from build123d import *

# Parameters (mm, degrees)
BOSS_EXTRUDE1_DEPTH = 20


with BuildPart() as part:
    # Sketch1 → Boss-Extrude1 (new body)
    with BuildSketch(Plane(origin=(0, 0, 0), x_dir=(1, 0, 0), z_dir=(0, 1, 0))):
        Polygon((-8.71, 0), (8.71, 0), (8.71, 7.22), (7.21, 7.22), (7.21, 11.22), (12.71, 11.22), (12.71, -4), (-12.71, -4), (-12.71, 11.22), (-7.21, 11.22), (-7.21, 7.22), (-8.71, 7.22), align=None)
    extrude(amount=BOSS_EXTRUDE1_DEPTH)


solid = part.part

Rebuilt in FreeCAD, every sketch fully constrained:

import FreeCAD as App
import Part
import Sketcher

V = App.Vector


def add_polygon(sketch, points):
    """Adds a closed chain of lines whose ends are joined by coincident constraints."""
    first, n = sketch.GeometryCount, len(points)
    for a, b in zip(points, points[1:] + points[:1]):
        sketch.addGeometry(Part.LineSegment(App.Vector(*a, 0), App.Vector(*b, 0)), False)
    for i in range(n):
        sketch.addConstraint(Sketcher.Constraint("Coincident", first + i, 2, first + (i + 1) % n, 1))

doc = App.newDocument("Part")
body = doc.addObject("PartDesign::Body", "Body")

# Sketch on XZ plane
sketch1 = body.newObject("Sketcher::SketchObject", "Sketch")
sketch1.AttachmentSupport = (doc.getObject("XZ_Plane"), [""])
sketch1.MapMode = "FlatFace"
add_polygon(sketch1, [(8.7, 0), (-8.7, 0), (-8.7, -7.2), (-7.2, -7.2), (-7.2, -11.2), (-12.7, -11.2), (-12.7, 4), (12.7, 4), (12.7, -11.2), (7.2, -11.2), (7.2, -7.2), (8.7, -7.2)])  # lines 0-11
sketch1.addConstraint([
    Sketcher.Constraint("Horizontal", 0),
    Sketcher.Constraint("Vertical", 1),
    Sketcher.Constraint("Horizontal", 2),
    Sketcher.Constraint("Vertical", 3),
    Sketcher.Constraint("Horizontal", 4),
    Sketcher.Constraint("Vertical", 5),
    Sketcher.Constraint("Horizontal", 6),
    Sketcher.Constraint("Vertical", 7),
    Sketcher.Constraint("Horizontal", 8),
    Sketcher.Constraint("Vertical", 9),
    Sketcher.Constraint("Horizontal", 10),
    Sketcher.Constraint("Vertical", 11),
    Sketcher.Constraint("Symmetric", 0, 2, 11, 2, -1, 1),
    Sketcher.Constraint("Symmetric", 4, 2, 7, 2, -2),
    Sketcher.Constraint("Symmetric", 2, 2, 9, 2, -2),
    Sketcher.Constraint("DistanceY", 3, 2, 3, 1, 4.0),
    Sketcher.Constraint("DistanceX", 2, 1, 2, 2, 1.5),
    Sketcher.Constraint("DistanceX", 4, 2, 4, 1, 5.5),
    Sketcher.Constraint("DistanceY", -1, 1, 5, 2, 4.0),
    Sketcher.Constraint("DistanceX", 0, 2, 0, 1, 17.42),
    Sketcher.Constraint("DistanceY", 1, 2, 1, 1, 7.22),
])
pad1 = body.newObject("PartDesign::Pad", "Pad")
pad1.Profile = sketch1
pad1.Length = 20
pad1.Reversed = True

doc.recompute()
